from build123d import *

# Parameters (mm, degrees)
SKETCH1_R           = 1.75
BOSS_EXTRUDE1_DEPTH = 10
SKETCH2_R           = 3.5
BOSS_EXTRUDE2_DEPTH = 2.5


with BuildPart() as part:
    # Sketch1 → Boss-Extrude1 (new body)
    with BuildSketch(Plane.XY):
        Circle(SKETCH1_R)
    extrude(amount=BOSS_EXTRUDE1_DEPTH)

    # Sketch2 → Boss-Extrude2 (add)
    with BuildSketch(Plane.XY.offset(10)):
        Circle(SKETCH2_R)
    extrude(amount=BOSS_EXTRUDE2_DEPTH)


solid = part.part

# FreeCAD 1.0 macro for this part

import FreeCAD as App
import Part
import Sketcher

V = App.Vector

doc = App.newDocument("Part")
body = doc.addObject("PartDesign::Body", "Body")

sketch1 = body.newObject("Sketcher::SketchObject", "Sketch")
sketch1.AttachmentSupport = (doc.getObject("XY_Plane"), [""])
sketch1.MapMode = "FlatFace"
sketch1.addGeometry(Part.Circle(V(0, 0, 0), V(0, 0, 1), 1.8), False)
sketch1.addConstraint(Sketcher.Constraint("Coincident", 0, 3, -1, 1))
sketch1.addConstraint(Sketcher.Constraint("Diameter", 0, 3.5))
pad1 = body.newObject("PartDesign::Pad", "Pad")
pad1.Profile = sketch1
pad1.Length = 10

sketch2 = body.newObject("Sketcher::SketchObject", "Sketch001")
sketch2.AttachmentSupport = (doc.getObject("XY_Plane"), [""])
sketch2.MapMode = "FlatFace"
sketch2.AttachmentOffset = App.Placement(V(0, 0, 10), App.Rotation())
sketch2.addGeometry(Part.Circle(V(0, 0, 0), V(0, 0, 1), 3.5), False)
sketch2.addConstraint(Sketcher.Constraint("Coincident", 0, 3, -1, 1))
sketch2.addConstraint(Sketcher.Constraint("Diameter", 0, 7.0))
pad2 = body.newObject("PartDesign::Pad", "Pad001")
pad2.Profile = sketch2
pad2.Length = 2.5

doc.recompute()
